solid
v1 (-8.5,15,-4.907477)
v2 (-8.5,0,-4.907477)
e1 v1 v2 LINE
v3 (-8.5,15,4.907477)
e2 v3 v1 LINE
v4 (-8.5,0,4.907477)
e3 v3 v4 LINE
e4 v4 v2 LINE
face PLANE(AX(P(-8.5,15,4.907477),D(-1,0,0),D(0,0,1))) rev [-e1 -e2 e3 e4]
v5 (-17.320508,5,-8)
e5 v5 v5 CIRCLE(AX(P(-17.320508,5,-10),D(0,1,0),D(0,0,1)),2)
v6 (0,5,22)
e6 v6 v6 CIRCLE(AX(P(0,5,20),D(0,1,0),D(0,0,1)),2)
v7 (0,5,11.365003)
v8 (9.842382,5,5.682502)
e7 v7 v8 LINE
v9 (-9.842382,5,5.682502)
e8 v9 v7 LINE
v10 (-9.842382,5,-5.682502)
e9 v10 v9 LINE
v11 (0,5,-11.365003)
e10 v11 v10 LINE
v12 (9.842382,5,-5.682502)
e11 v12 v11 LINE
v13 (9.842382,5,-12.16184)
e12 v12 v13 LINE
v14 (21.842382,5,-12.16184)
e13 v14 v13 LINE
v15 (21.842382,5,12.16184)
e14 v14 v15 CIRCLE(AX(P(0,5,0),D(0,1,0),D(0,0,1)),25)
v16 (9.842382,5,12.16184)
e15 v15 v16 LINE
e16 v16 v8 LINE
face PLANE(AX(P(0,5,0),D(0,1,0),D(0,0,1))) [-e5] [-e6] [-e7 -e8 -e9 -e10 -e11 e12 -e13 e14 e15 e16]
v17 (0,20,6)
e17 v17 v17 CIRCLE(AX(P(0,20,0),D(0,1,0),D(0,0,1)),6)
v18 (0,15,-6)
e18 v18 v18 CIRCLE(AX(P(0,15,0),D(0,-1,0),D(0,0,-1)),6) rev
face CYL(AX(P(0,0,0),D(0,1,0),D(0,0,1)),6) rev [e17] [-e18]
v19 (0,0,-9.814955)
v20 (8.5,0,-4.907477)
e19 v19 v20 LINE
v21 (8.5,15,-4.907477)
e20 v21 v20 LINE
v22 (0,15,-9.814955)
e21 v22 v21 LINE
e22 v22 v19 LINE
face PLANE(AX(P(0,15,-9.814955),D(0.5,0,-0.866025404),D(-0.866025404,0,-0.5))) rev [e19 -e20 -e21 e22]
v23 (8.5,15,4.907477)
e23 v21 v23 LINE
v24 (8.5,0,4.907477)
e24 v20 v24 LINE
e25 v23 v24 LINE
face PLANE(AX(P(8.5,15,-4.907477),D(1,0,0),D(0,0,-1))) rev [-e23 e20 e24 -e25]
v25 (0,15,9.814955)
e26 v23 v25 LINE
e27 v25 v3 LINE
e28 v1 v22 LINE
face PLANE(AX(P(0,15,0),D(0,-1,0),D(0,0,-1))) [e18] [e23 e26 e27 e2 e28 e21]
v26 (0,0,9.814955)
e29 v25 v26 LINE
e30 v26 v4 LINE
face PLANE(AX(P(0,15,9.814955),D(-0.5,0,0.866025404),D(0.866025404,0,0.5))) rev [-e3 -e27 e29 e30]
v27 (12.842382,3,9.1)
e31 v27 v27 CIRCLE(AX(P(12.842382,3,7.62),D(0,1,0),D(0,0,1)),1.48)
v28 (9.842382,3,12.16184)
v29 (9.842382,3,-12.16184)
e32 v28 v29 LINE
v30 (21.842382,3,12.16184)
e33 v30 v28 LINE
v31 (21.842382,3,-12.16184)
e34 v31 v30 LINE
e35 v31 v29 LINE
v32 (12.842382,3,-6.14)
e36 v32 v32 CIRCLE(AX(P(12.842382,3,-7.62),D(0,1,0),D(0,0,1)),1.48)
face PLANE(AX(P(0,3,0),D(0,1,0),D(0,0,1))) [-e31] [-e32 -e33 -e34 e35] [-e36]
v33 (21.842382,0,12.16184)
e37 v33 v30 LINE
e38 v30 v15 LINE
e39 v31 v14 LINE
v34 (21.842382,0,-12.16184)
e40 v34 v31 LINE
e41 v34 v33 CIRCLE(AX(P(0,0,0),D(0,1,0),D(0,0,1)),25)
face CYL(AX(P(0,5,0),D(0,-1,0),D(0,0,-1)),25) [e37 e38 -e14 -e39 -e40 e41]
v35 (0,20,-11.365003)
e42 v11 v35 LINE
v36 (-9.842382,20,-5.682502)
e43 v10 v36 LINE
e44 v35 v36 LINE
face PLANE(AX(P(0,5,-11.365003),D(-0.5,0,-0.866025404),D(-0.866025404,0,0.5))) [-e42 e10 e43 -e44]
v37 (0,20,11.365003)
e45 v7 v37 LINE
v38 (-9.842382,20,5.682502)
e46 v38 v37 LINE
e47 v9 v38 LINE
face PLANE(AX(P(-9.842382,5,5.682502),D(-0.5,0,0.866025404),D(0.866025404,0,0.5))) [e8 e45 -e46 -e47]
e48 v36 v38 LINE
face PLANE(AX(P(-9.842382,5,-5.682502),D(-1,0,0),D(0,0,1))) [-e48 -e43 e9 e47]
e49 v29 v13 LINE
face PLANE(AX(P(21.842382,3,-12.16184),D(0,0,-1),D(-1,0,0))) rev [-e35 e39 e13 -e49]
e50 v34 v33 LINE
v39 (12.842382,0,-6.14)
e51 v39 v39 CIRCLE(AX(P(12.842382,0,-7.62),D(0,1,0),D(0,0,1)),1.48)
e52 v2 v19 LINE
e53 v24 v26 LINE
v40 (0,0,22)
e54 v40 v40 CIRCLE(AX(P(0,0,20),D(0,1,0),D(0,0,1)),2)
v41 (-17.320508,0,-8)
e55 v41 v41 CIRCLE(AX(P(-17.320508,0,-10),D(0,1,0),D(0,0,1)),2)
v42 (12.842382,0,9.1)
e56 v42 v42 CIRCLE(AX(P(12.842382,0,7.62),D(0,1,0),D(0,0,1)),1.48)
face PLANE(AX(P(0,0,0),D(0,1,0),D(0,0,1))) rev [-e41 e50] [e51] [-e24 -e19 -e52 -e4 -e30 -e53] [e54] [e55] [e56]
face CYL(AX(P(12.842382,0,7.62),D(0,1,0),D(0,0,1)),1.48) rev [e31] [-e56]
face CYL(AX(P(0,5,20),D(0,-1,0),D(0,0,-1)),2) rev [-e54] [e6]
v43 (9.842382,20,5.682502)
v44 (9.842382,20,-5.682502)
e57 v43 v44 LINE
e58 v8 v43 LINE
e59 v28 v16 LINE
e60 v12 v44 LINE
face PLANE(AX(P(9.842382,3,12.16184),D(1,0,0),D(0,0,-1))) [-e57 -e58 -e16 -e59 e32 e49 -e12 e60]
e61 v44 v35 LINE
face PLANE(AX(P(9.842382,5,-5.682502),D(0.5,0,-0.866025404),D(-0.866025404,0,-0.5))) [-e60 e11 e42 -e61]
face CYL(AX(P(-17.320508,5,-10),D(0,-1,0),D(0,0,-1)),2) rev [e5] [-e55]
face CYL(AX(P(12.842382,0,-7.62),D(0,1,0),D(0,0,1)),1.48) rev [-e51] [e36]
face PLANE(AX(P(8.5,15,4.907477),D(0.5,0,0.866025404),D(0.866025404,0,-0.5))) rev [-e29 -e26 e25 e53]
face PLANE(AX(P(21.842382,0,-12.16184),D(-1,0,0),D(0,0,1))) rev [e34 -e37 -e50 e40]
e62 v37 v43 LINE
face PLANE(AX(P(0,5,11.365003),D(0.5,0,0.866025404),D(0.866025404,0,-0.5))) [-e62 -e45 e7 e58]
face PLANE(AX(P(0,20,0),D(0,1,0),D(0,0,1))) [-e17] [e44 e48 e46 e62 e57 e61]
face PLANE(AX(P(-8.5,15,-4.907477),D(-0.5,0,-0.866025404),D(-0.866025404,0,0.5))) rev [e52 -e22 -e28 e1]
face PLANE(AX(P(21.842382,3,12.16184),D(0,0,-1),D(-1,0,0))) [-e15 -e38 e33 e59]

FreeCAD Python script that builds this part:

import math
import FreeCAD as App
import Part
import Sketcher
from FreeCAD import Vector
Q = App.Units.Quantity

doc = App.newDocument("Part")
params = doc.addObject("Spreadsheet::Sheet", "Params")
for row, (alias, value) in enumerate([
    ("sketch1_diameter", "50 mm"),
    ("sketch1_diameter2", "4 mm"),
    ("sketch1_diameter3", "30 mm"),
    ("pad1_length", "5 mm"),
    ("sketch2_radius", "1.48 mm"),
    ("sketch2_height", "20.32 mm"),
    ("pad2_length", "5 mm"),
    ("sketch3_diameter", "2.96 mm"),
    ("pocket1_length", "5 mm"),
    ("sketch4_diameter", "2.96 mm"),
    ("sketch4_height", "20.32 mm"),
    ("pad3_length", "25 mm"),
    ("sketch5_diameter", "2.96 mm"),
    ("pad4_length", "15 mm"),
    ("sketch6_height", "20.32 mm"),
    ("pocket2_length", "10 mm"),
    ("sketch7_diameter", "2.96 mm"),
    ("pocket3_length", "15 mm"),
    ("sketch8_radius", "1.48 mm"),
    ("sketch8_height", "20.32 mm"),
    ("pad5_length", "15 mm"),
    ("sketch9_height", "20.32 mm"),
    ("pocket4_length", "20 mm"),
    ("sketch10_height", "20.32 mm"),
    ("pad6_length", "10 mm"),
    ("sketch11_radius", "25 mm"),
    ("sketch11_height", "20.32 mm"),
    ("pad7_length", "5 mm"),
    ("sketch12_radius", "31.39 mm"),
    ("sketch12_height", "10.16 mm"),
    ("pocket5_length", "30 mm"),
    ("sketch13_diameter", "30 mm"),
    ("sketch13_diameter2", "13 mm"),
    ("pad8_length", "5 mm"),
    ("sketch14_diameter", "2.96 mm"),
    ("pocket6_length", "5 mm"),
    ("pocket7_length", "15 mm"),
    ("sketch16_diameter", "13 mm"),
    ("sketch16_diameter2", "12 mm"),
    ("pad9_length", "5 mm"),
    ("sketch17_diameter", "2.96 mm"),
    ("sketch17_height", "20.32 mm"),
    ("pocket8_length", "2 mm"),
    ("sketch18_radius", "24.999999 mm"),
    ("sketch18_height", "20.32 mm"),
    ("pocket9_length", "2 mm"),
    ("sketch19_width", "12 mm"),
    ("pocket10_length", "2 mm"),
    ("sketch20_diameter", "4 mm"),
    ("pad10_length", "3 mm"),
    ("sketch21_diameter", "2.96 mm"),
    ("pocket11_length", "3 mm"),
    ("pocket12_length", "3 mm"),
    ("sketch23_diameter", "12 mm"),
    ("pad11_length", "15 mm"),
    ("pocket13_length", "15 mm"),
    ("sketch25_diameter", "12 mm"),
    ("pad12_length", "15 mm"),
    ("pocket14_length", "15 mm"),
], start=1):
    params.set(f"A{row}", alias)
    params.set(f"B{row}", "=" + value)
    params.setAlias(f"B{row}", alias)

body = doc.addObject("PartDesign::Body", "Body")

sketch1 = body.newObject("Sketcher::SketchObject", "Sketch")
sketch1.AttachmentSupport = (doc.getObject("XZ_Plane"), [""])
sketch1.MapMode = "FlatFace"
sketch1.addGeometry([
    Part.Circle(Vector(0, 0, 0), Vector(0, 0, 1), 25),
    Part.Circle(Vector(-17.3, -10, 0), Vector(0, 0, 1), 2),
    Part.Circle(Vector(0, 0, 0), Vector(0, 0, 1), 15),
    Part.Circle(Vector(17.3, -10, 0), Vector(0, 0, 1), 2),
    Part.Circle(Vector(0, 20, 0), Vector(0, 0, 1), 2),
], False)
sketch1.addConstraint([
    Sketcher.Constraint("Coincident", 0, 3, -1, 1),
    Sketcher.Constraint("Coincident", 2, 3, -1, 1),
    Sketcher.Constraint("Equal", 1, 3),
    Sketcher.Constraint("Equal", 3, 4),
    Sketcher.Constraint("Symmetric", 1, 3, 3, 3, -2),
    Sketcher.Constraint("PointOnObject", 4, 3, -2),
    Sketcher.Constraint("Diameter", 0, Q("50 mm")),
    Sketcher.Constraint("Diameter", 1, Q("4 mm")),
    Sketcher.Constraint("Diameter", 2, Q("30 mm")),
    Sketcher.Constraint("DistanceY", 1, 3, -1, 1, Q("10 mm")),
    Sketcher.Constraint("DistanceY", -1, 1, 4, 3, Q("20 mm")),
    Sketcher.Constraint("DistanceX", 1, 3, -1, 1, Q("17.320508 mm")),
])
sketch1.setExpression("Constraints[6]", "Params.sketch1_diameter")
sketch1.setExpression("Constraints[7]", "Params.sketch1_diameter2")
sketch1.setExpression("Constraints[8]", "Params.sketch1_diameter3")
pad1 = body.newObject("PartDesign::Pad", "Pad")
pad1.Profile = sketch1
pad1.setExpression("Length", "Params.pad1_length")
pad1.Reversed = True

sketch2 = body.newObject("Sketcher::SketchObject", "Sketch001")
sketch2.AttachmentSupport = (doc.getObject("XZ_Plane"), [""])
sketch2.MapMode = "FlatFace"
sketch2.addGeometry([
    Part.LineSegment(Vector(-22.8, -10.2, 0), Vector(-31.4, -10.2, 0)),
    Part.LineSegment(Vector(-31.4, -10.2, 0), Vector(-31.4, 10.2, 0)),
    Part.LineSegment(Vector(-31.4, 10.2, 0), Vector(-22.8, 10.2, 0)),
    Part.LineSegment(Vector(-22.8, 10.2, 0), Vector(-22.8, -10.2, 0)),
    Part.ArcOfCircle(Part.Circle(Vector(-25, 7.6, 0), Vector(0, 0, 1), 1.5), math.radians(20), math.radians(307)),
    Part.ArcOfCircle(Part.Circle(Vector(-25, 7.6, 0), Vector(0, 0, 1), 1.5), math.radians(-53), math.radians(0)),
    Part.ArcOfCircle(Part.Circle(Vector(-25, 7.6, 0), Vector(0, 0, 1), 1.5), math.radians(0), math.radians(19.6)),
    Part.ArcOfCircle(Part.Circle(Vector(-25, -7.6, 0), Vector(0, 0, 1), 1.5), math.radians(53), math.radians(340)),
    Part.ArcOfCircle(Part.Circle(Vector(-25, -7.6, 0), Vector(0, 0, 1), 1.5), math.radians(-19.6), math.radians(0)),
    Part.ArcOfCircle(Part.Circle(Vector(-25, -7.6, 0), Vector(0, 0, 1), 1.5), math.radians(0), math.radians(53)),
], False)
sketch2.addConstraint([
    Sketcher.Constraint("Coincident", 0, 2, 1, 1),
    Sketcher.Constraint("Coincident", 1, 2, 2, 1),
    Sketcher.Constraint("Coincident", 2, 2, 3, 1),
    Sketcher.Constraint("Coincident", 3, 2, 0, 1),
    Sketcher.Constraint("Tangent", 4, 2, 5, 1),
    Sketcher.Constraint("Tangent", 5, 2, 6, 1),
    Sketcher.Constraint("Tangent", 6, 2, 4, 1),
    Sketcher.Constraint("Tangent", 7, 2, 8, 1),
    Sketcher.Constraint("Tangent", 8, 2, 9, 1),
    Sketcher.Constraint("Tangent", 9, 2, 7, 1),
    Sketcher.Constraint("Horizontal", 0),
    Sketcher.Constraint("Vertical", 1),
    Sketcher.Constraint("Horizontal", 2),
    Sketcher.Constraint("Vertical", 3),
    Sketcher.Constraint("Equal", 6, 7),
    Sketcher.Constraint("Symmetric", 4, 3, 7, 3, -1),
    Sketcher.Constraint("Horizontal", 6, 3, 5, 2),
    Sketcher.Constraint("Horizontal", 9, 3, 8, 2),
    Sketcher.Constraint("Vertical", 6, 2, 7, 2),
    Sketcher.Constraint("Vertical", 4, 2, 9, 2),
    Sketcher.Constraint("Radius", 4, Q("1.48 mm")),
    Sketcher.Constraint("DistanceY", 1, 1, 1, 2, Q("20.32 mm")),
    Sketcher.Constraint("DistanceX", 4, 3, -1, 1, Q("25.04 mm")),
    Sketcher.Constraint("DistanceY", -1, 1, 4, 3, Q("7.62 mm")),
    Sketcher.Constraint("DistanceX", 0, 2, -1, 1, Q("31.39 mm")),
    Sketcher.Constraint("DistanceY", 0, 2, -1, 1, Q("10.16 mm")),
    Sketcher.Constraint("DistanceX", 0, 2, 0, 1, Q("8.547618 mm")),
    Sketcher.Constraint("DistanceX", 6, 2, -1, 1, Q("23.645768 mm")),
    Sketcher.Constraint("DistanceY", 4, 2, 6, 2, Q("1.685489 mm")),
])
sketch2.setExpression("Constraints[20]", "Params.sketch2_radius")
sketch2.setExpression("Constraints[21]", "Params.sketch2_height")
pad2 = body.newObject("PartDesign::Pad", "Pad001")
pad2.Profile = sketch2
pad2.setExpression("Length", "Params.pad2_length")
pad2.Reversed = True

sketch3 = body.newObject("Sketcher::SketchObject", "Sketch002")
sketch3.AttachmentSupport = (doc.getObject("XZ_Plane"), [""])
sketch3.MapMode = "FlatFace"
sketch3.addGeometry([
    Part.Circle(Vector(-25, -7.6, 0), Vector(0, 0, 1), 1.5),
    Part.Circle(Vector(-25, 7.6, 0), Vector(0, 0, 1), 1.5),
], False)
sketch3.addConstraint([
    Sketcher.Constraint("Equal", 0, 1),
    Sketcher.Constraint("Symmetric", 0, 3, 1, 3, -1),
    Sketcher.Constraint("Diameter", 0, Q("2.96 mm")),
    Sketcher.Constraint("DistanceX", 0, 3, -1, 1, Q("25.04 mm")),
    Sketcher.Constraint("DistanceY", 0, 3, -1, 1, Q("7.62 mm")),
])
sketch3.setExpression("Constraints[2]", "Params.sketch3_diameter")
pocket1 = body.newObject("PartDesign::Pocket", "Pocket")
pocket1.Profile = sketch3
pocket1.setExpression("Length", "Params.pocket1_length")

sketch4 = body.newObject("Sketcher::SketchObject", "Sketch003")
sketch4.AttachmentSupport = (doc.getObject("XZ_Plane"), [""])
sketch4.MapMode = "FlatFace"
sketch4.AttachmentOffset = App.Placement(Vector(0, 0, -5), App.Rotation())
sketch4.addGeometry([
    Part.LineSegment(Vector(-31.4, -10.2, 0), Vector(-31.4, 10.2, 0)),
    Part.LineSegment(Vector(-31.4, 10.2, 0), Vector(-22.8, 10.2, 0)),
    Part.LineSegment(Vector(-22.8, 10.2, 0), Vector(-22.8, -10.2, 0)),
    Part.LineSegment(Vector(-22.8, -10.2, 0), Vector(-31.4, -10.2, 0)),
    Part.Circle(Vector(-25, 7.6, 0), Vector(0, 0, 1), 1.5),
    Part.Circle(Vector(-25, -7.6, 0), Vector(0, 0, 1), 1.5),
], False)
sketch4.addConstraint([
    Sketcher.Constraint("Coincident", 0, 2, 1, 1),
    Sketcher.Constraint("Coincident", 1, 2, 2, 1),
    Sketcher.Constraint("Coincident", 2, 2, 3, 1),
    Sketcher.Constraint("Coincident", 3, 2, 0, 1),
    Sketcher.Constraint("Vertical", 0),
    Sketcher.Constraint("Horizontal", 1),
    Sketcher.Constraint("Vertical", 2),
    Sketcher.Constraint("Horizontal", 3),
    Sketcher.Constraint("Symmetric", 4, 3, 5, 3, -1),
    Sketcher.Constraint("Diameter", 5, Q("2.96 mm")),
    Sketcher.Constraint("DistanceY", 0, 1, 0, 2, Q("20.32 mm")),
    Sketcher.Constraint("DistanceX", 4, 3, -1, 1, Q("25.04 mm")),
    Sketcher.Constraint("DistanceY", -1, 1, 4, 3, Q("7.62 mm")),
    Sketcher.Constraint("DistanceX", 0, 2, -1, 1, Q("31.39 mm")),
    Sketcher.Constraint("DistanceY", -1, 1, 0, 2, Q("10.16 mm")),
    Sketcher.Constraint("Diameter", 4, Q("3.065222 mm")),
    Sketcher.Constraint("DistanceX", 1, 1, 1, 2, Q("8.547618 mm")),
])
sketch4.setExpression("Constraints[9]", "Params.sketch4_diameter")
sketch4.setExpression("Constraints[10]", "Params.sketch4_height")
pad3 = body.newObject("PartDesign::Pad", "Pad002")
pad3.Profile = sketch4
pad3.setExpression("Length", "Params.pad3_length")
pad3.Reversed = True

sketch5 = body.newObject("Sketcher::SketchObject", "Sketch004")
sketch5.AttachmentSupport = (doc.getObject("XZ_Plane"), [""])
sketch5.MapMode = "FlatFace"
sketch5.addGeometry([
    Part.Circle(Vector(-25, 7.6, 0), Vector(0, 0, 1), 1.5),
    Part.Circle(Vector(-25, -7.6, 0), Vector(0, 0, 1), 1.5),
], False)
sketch5.addConstraint([
    Sketcher.Constraint("Equal", 0, 1),
    Sketcher.Constraint("Symmetric", 0, 3, 1, 3, -1),
    Sketcher.Constraint("Diameter", 0, Q("2.96 mm")),
    Sketcher.Constraint("DistanceX", 0, 3, -1, 1, Q("25.04 mm")),
    Sketcher.Constraint("DistanceY", -1, 1, 0, 3, Q("7.62 mm")),
])
sketch5.setExpression("Constraints[2]", "Params.sketch5_diameter")
pad4 = body.newObject("PartDesign::Pad", "Pad003")
pad4.Profile = sketch5
pad4.setExpression("Length", "Params.pad4_length")
pad4.Reversed = True

sketch6 = body.newObject("Sketcher::SketchObject", "Sketch005")
sketch6.AttachmentSupport = (doc.getObject("XZ_Plane"), [""])
sketch6.MapMode = "FlatFace"
sketch6.AttachmentOffset = App.Placement(Vector(0, 0, -30), App.Rotation())
sketch6.addGeometry([
    Part.LineSegment(Vector(-31, -10, 0), Vector(-31, 10, 0)),
    Part.LineSegment(Vector(-31, 10, 0), Vector(-23, 10, 0)),
    Part.LineSegment(Vector(-23, 10, 0), Vector(-23, -10, 0)),
    Part.LineSegment(Vector(-23, -10, 0), Vector(-31, -10, 0)),
], False)
sketch6.addConstraint([
    Sketcher.Constraint("Coincident", 0, 2, 1, 1),
    Sketcher.Constraint("Coincident", 1, 2, 2, 1),
    Sketcher.Constraint("Coincident", 2, 2, 3, 1),
    Sketcher.Constraint("Coincident", 3, 2, 0, 1),
    Sketcher.Constraint("Vertical", 0),
    Sketcher.Constraint("Horizontal", 1),
    Sketcher.Constraint("Vertical", 2),
    Sketcher.Constraint("Horizontal", 3),
    Sketcher.Constraint("DistanceY", 0, 1, 0, 2, Q("20.32 mm")),
    Sketcher.Constraint("DistanceX", 0, 2, -1, 1, Q("31.39 mm")),
    Sketcher.Constraint("DistanceY", -1, 1, 0, 2, Q("10.16 mm")),
    Sketcher.Constraint("DistanceX", 1, 1, 1, 2, Q("8.547618 mm")),
])
sketch6.setExpression("Constraints[8]", "Params.sketch6_height")
pocket2 = body.newObject("PartDesign::Pocket", "Pocket001")
pocket2.Profile = sketch6
pocket2.setExpression("Length", "Params.pocket2_length")
pocket2.Reversed = True

sketch7 = body.newObject("Sketcher::SketchObject", "Sketch006")
sketch7.AttachmentSupport = (doc.getObject("XZ_Plane"), [""])
sketch7.MapMode = "FlatFace"
sketch7.AttachmentOffset = App.Placement(Vector(0, 0, -5), App.Rotation())
sketch7.addGeometry([
    Part.Circle(Vector(-25, -7.6, 0), Vector(0, 0, 1), 1.5),
    Part.Circle(Vector(-25, 7.6, 0), Vector(0, 0, 1), 1.5),
], False)
sketch7.addConstraint([
    Sketcher.Constraint("Symmetric", 0, 3, 1, 3, -1),
    Sketcher.Constraint("Diameter", 0, Q("2.96 mm")),
    Sketcher.Constraint("DistanceX", 0, 3, -1, 1, Q("25.04 mm")),
    Sketcher.Constraint("DistanceY", 0, 3, -1, 1, Q("7.62 mm")),
    Sketcher.Constraint("Diameter", 1, Q("3.065222 mm")),
])
sketch7.setExpression("Constraints[1]", "Params.sketch7_diameter")
pocket3 = body.newObject("PartDesign::Pocket", "Pocket002")
pocket3.Profile = sketch7
pocket3.setExpression("Length", "Params.pocket3_length")

sketch8 = body.newObject("Sketcher::SketchObject", "Sketch007")
sketch8.AttachmentSupport = (doc.getObject("XZ_Plane"), [""])
sketch8.MapMode = "FlatFace"
sketch8.AttachmentOffset = App.Placement(Vector(0, 0, -5), App.Rotation())
sketch8.addGeometry([
    Part.LineSegment(Vector(31.4, -10.2, 0), Vector(22.8, -10.2, 0)),
    Part.LineSegment(Vector(22.8, -10.2, 0), Vector(22.8, 10.2, 0)),
    Part.LineSegment(Vector(22.8, 10.2, 0), Vector(31.4, 10.2, 0)),
    Part.LineSegment(Vector(31.4, 10.2, 0), Vector(31.4, -10.2, 0)),
    Part.ArcOfCircle(Part.Circle(Vector(25, -7.6, 0), Vector(0, 0, 1), 1.5), math.radians(-160), math.radians(0)),
    Part.ArcOfCircle(Part.Circle(Vector(25, -7.6, 0), Vector(0, 0, 1), 1.5), math.radians(0), math.radians(127)),
    Part.ArcOfCircle(Part.Circle(Vector(25, -7.6, 0), Vector(0, 0, 1), 1.5), math.radians(127), math.radians(200)),
    Part.ArcOfCircle(Part.Circle(Vector(25, 7.6, 0), Vector(0, 0, 1), 1.5), math.radians(-127), math.radians(0)),
    Part.ArcOfCircle(Part.Circle(Vector(25, 7.6, 0), Vector(0, 0, 1), 1.5), math.radians(0), math.radians(160)),
    Part.ArcOfCircle(Part.Circle(Vector(25, 7.6, 0), Vector(0, 0, 1), 1.5), math.radians(160), math.radians(233)),
], False)
sketch8.addConstraint([
    Sketcher.Constraint("Coincident", 0, 2, 1, 1),
    Sketcher.Constraint("Coincident", 1, 2, 2, 1),
    Sketcher.Constraint("Coincident", 2, 2, 3, 1),
    Sketcher.Constraint("Coincident", 3, 2, 0, 1),
    Sketcher.Constraint("Tangent", 4, 2, 5, 1),
    Sketcher.Constraint("Tangent", 5, 2, 6, 1),
    Sketcher.Constraint("Tangent", 6, 2, 4, 1),
    Sketcher.Constraint("Tangent", 7, 2, 8, 1),
    Sketcher.Constraint("Tangent", 8, 2, 9, 1),
    Sketcher.Constraint("Tangent", 9, 2, 7, 1),
    Sketcher.Constraint("Horizontal", 0),
    Sketcher.Constraint("Vertical", 1),
    Sketcher.Constraint("Horizontal", 2),
    Sketcher.Constraint("Vertical", 3),
    Sketcher.Constraint("Equal", 6, 7),
    Sketcher.Constraint("Symmetric", 4, 3, 7, 3, -1),
    Sketcher.Constraint("Horizontal", 6, 3, 4, 2),
    Sketcher.Constraint("Horizontal", 9, 3, 7, 2),
    Sketcher.Constraint("Vertical", 6, 2, 8, 2),
    Sketcher.Constraint("Vertical", 5, 2, 9, 2),
    Sketcher.Constraint("Radius", 4, Q("1.48 mm")),
    Sketcher.Constraint("DistanceY", 1, 1, 1, 2, Q("20.32 mm")),
    Sketcher.Constraint("DistanceX", -1, 1, 4, 3, Q("25.04 mm")),
    Sketcher.Constraint("DistanceY", 4, 3, -1, 1, Q("7.62 mm")),
    Sketcher.Constraint("DistanceY", 0, 2, -1, 1, Q("10.16 mm")),
    Sketcher.Constraint("DistanceX", -1, 1, 2, 2, Q("31.39 mm")),
    Sketcher.Constraint("DistanceX", 0, 2, 0, 1, Q("8.547618 mm")),
    Sketcher.Constraint("DistanceX", -1, 1, 6, 2, Q("23.645768 mm")),
    Sketcher.Constraint("DistanceY", 6, 2, 5, 2, Q("1.685489 mm")),
])
sketch8.setExpression("Constraints[20]", "Params.sketch8_radius")
sketch8.setExpression("Constraints[21]", "Params.sketch8_height")
pad5 = body.newObject("PartDesign::Pad", "Pad004")
pad5.Profile = sketch8
pad5.setExpression("Length", "Params.pad5_length")
pad5.Reversed = True

sketch9 = body.newObject("Sketcher::SketchObject", "Sketch008")
sketch9.AttachmentSupport = (doc.getObject("XZ_Plane"), [""])
sketch9.MapMode = "FlatFace"
sketch9.AttachmentOffset = App.Placement(Vector(0, 0, -20), App.Rotation())
sketch9.addGeometry([
    Part.LineSegment(Vector(-31, -10, 0), Vector(-31, 10, 0)),
    Part.LineSegment(Vector(-31, 10, 0), Vector(-23, 10, 0)),
    Part.LineSegment(Vector(-23, 10, 0), Vector(-23, -10, 0)),
    Part.LineSegment(Vector(-23, -10, 0), Vector(-31, -10, 0)),
], False)
sketch9.addConstraint([
    Sketcher.Constraint("Coincident", 0, 2, 1, 1),
    Sketcher.Constraint("Coincident", 1, 2, 2, 1),
    Sketcher.Constraint("Coincident", 2, 2, 3, 1),
    Sketcher.Constraint("Coincident", 3, 2, 0, 1),
    Sketcher.Constraint("Vertical", 0),
    Sketcher.Constraint("Horizontal", 1),
    Sketcher.Constraint("Vertical", 2),
    Sketcher.Constraint("Horizontal", 3),
    Sketcher.Constraint("DistanceY", 0, 1, 0, 2, Q("20.32 mm")),
    Sketcher.Constraint("DistanceX", 0, 2, -1, 1, Q("31.39 mm")),
    Sketcher.Constraint("DistanceY", -1, 1, 0, 2, Q("10.16 mm")),
    Sketcher.Constraint("DistanceX", 1, 1, 1, 2, Q("8.547618 mm")),
])
sketch9.setExpression("Constraints[8]", "Params.sketch9_height")
pocket4 = body.newObject("PartDesign::Pocket", "Pocket003")
pocket4.Profile = sketch9
pocket4.setExpression("Length", "Params.pocket4_length")
pocket4.Reversed = True

sketch10 = body.newObject("Sketcher::SketchObject", "Sketch009")
sketch10.AttachmentSupport = (doc.getObject("XZ_Plane"), [""])
sketch10.MapMode = "FlatFace"
sketch10.addGeometry([
    Part.LineSegment(Vector(23, 10, 0), Vector(23, -10, 0)),
    Part.LineSegment(Vector(23, -10, 0), Vector(31, -10, 0)),
    Part.LineSegment(Vector(31, -10, 0), Vector(31, 10, 0)),
    Part.LineSegment(Vector(31, 10, 0), Vector(23, 10, 0)),
], False)
sketch10.addConstraint([
    Sketcher.Constraint("Coincident", 0, 2, 1, 1),
    Sketcher.Constraint("Coincident", 1, 2, 2, 1),
    Sketcher.Constraint("Coincident", 2, 2, 3, 1),
    Sketcher.Constraint("Coincident", 3, 2, 0, 1),
    Sketcher.Constraint("Vertical", 0),
    Sketcher.Constraint("Horizontal", 1),
    Sketcher.Constraint("Vertical", 2),
    Sketcher.Constraint("Horizontal", 3),
    Sketcher.Constraint("DistanceY", 0, 2, 0, 1, Q("20.32 mm")),
    Sketcher.Constraint("DistanceY", 0, 2, -1, 1, Q("10.16 mm")),
    Sketcher.Constraint("DistanceX", -1, 1, 1, 2, Q("31.39 mm")),
    Sketcher.Constraint("DistanceX", 1, 1, 1, 2, Q("8.547618 mm")),
])
sketch10.setExpression("Constraints[8]", "Params.sketch10_height")
pad6 = body.newObject("PartDesign::Pad", "Pad005")
pad6.Profile = sketch10
pad6.setExpression("Length", "Params.pad6_length")
pad6.Reversed = True

sketch11 = body.newObject("Sketcher::SketchObject", "Sketch010")
sketch11.AttachmentSupport = (doc.getObject("XZ_Plane"), [""])
sketch11.MapMode = "FlatFace"
sketch11.addGeometry([
    Part.LineSegment(Vector(-23, 10, 0), Vector(-23, -10, 0)),
    Part.ArcOfCircle(Part.Circle(Vector(0, 0, 0), Vector(0, 0, 1), 25), math.radians(156), math.radians(204)),
], False)
sketch11.addConstraint([
    Sketcher.Constraint("Coincident", 0, 1, 1, 1),
    Sketcher.Constraint("Coincident", 1, 2, 0, 2),
    Sketcher.Constraint("Vertical", 0),
    Sketcher.Constraint("Coincident", 1, 3, -1, 1),
    Sketcher.Constraint("Radius", 1, Q("25 mm")),
    Sketcher.Constraint("DistanceY", 0, 2, 0, 1, Q("20.32 mm")),
])
sketch11.setExpression("Constraints[4]", "Params.sketch11_radius")
sketch11.setExpression("Constraints[5]", "Params.sketch11_height")
pad7 = body.newObject("PartDesign::Pad", "Pad006")
pad7.Profile = sketch11
pad7.setExpression("Length", "Params.pad7_length")
pad7.Reversed = True

sketch12 = body.newObject("Sketcher::SketchObject", "Sketch011")
sketch12.AttachmentSupport = (doc.getObject("XZ_Plane"), [""])
sketch12.MapMode = "FlatFace"
sketch12.addGeometry([
    Part.ArcOfCircle(Part.Circle(Vector(0, 0, 0), Vector(0, 0, 1), 31.4), math.radians(0), math.radians(18.89)),
    Part.LineSegment(Vector(31.4, 0, 0), Vector(31.4, 10.2, 0)),
    Part.LineSegment(Vector(31.4, 10.2, 0), Vector(29.7, 10.2, 0)),
    Part.ArcOfCircle(Part.Circle(Vector(0, 0, 0), Vector(0, 0, 1), 31.4), math.radians(-18.89), math.radians(0)),
    Part.LineSegment(Vector(29.7, -10.2, 0), Vector(31.4, -10.2, 0)),
    Part.LineSegment(Vector(31.4, -10.2, 0), Vector(31.4, 0, 0)),
], False)
sketch12.addConstraint([
    Sketcher.Constraint("Tangent", 0, 1, 1, 1),
    Sketcher.Constraint("Coincident", 1, 2, 2, 1),
    Sketcher.Constraint("Coincident", 2, 2, 0, 2),
    Sketcher.Constraint("Coincident", 3, 1, 4, 1),
    Sketcher.Constraint("Coincident", 4, 2, 5, 1),
    Sketcher.Constraint("Tangent", 5, 2, 3, 2),
    Sketcher.Constraint("Vertical", 1),
    Sketcher.Constraint("Horizontal", 2),
    Sketcher.Constraint("Horizontal", 4),
    Sketcher.Constraint("Vertical", 5),
    Sketcher.Constraint("Coincident", 0, 3, -1, 1),
    Sketcher.Constraint("Coincident", 3, 3, -1, 1),
    Sketcher.Constraint("Equal", 0, 3),
    Sketcher.Constraint("Vertical", 2, 2, 3, 1),
    Sketcher.Constraint("Radius", 0, Q("31.39 mm")),
    Sketcher.Constraint("DistanceY", 1, 1, 1, 2, Q("10.16 mm")),
])
sketch12.setExpression("Constraints[14]", "Params.sketch12_radius")
sketch12.setExpression("Constraints[15]", "Params.sketch12_height")
pocket5 = body.newObject("PartDesign::Pocket", "Pocket004")
pocket5.Profile = sketch12
pocket5.setExpression("Length", "Params.pocket5_length")

sketch13 = body.newObject("Sketcher::SketchObject", "Sketch012")
sketch13.AttachmentSupport = (doc.getObject("XZ_Plane"), [""])
sketch13.MapMode = "FlatFace"
sketch13.addGeometry([
    Part.Circle(Vector(0, 0, 0), Vector(0, 0, 1), 15),
    Part.Circle(Vector(0, 0, 0), Vector(0, 0, 1), 6),
], False)
sketch13.addConstraint([
    Sketcher.Constraint("Coincident", 0, 3, -1, 1),
    Sketcher.Constraint("Coincident", 1, 3, -1, 1),
    Sketcher.Constraint("Diameter", 0, Q("30 mm")),
    Sketcher.Constraint("Diameter", 1, Q("13 mm")),
])
sketch13.setExpression("Constraints[2]", "Params.sketch13_diameter")
sketch13.setExpression("Constraints[3]", "Params.sketch13_diameter2")
pad8 = body.newObject("PartDesign::Pad", "Pad007")
pad8.Profile = sketch13
pad8.setExpression("Length", "Params.pad8_length")
pad8.Reversed = True

sketch14 = body.newObject("Sketcher::SketchObject", "Sketch013")
sketch14.AttachmentSupport = (doc.getObject("XZ_Plane"), [""])
sketch14.MapMode = "FlatFace"
sketch14.addGeometry([
    Part.Circle(Vector(25, -7.6, 0), Vector(0, 0, 1), 1.5),
    Part.Circle(Vector(25, 7.6, 0), Vector(0, 0, 1), 1.5),
], False)
sketch14.addConstraint([
    Sketcher.Constraint("Equal", 0, 1),
    Sketcher.Constraint("Symmetric", 0, 3, 1, 3, -1),
    Sketcher.Constraint("Diameter", 0, Q("2.96 mm")),
    Sketcher.Constraint("DistanceX", -1, 1, 0, 3, Q("25.04 mm")),
    Sketcher.Constraint("DistanceY", 0, 3, -1, 1, Q("7.62 mm")),
])
sketch14.setExpression("Constraints[2]", "Params.sketch14_diameter")
pocket6 = body.newObject("PartDesign::Pocket", "Pocket005")
pocket6.Profile = sketch14
pocket6.setExpression("Length", "Params.pocket6_length")

sketch15 = body.newObject("Sketcher::SketchObject", "Sketch014")
sketch15.AttachmentSupport = (doc.getObject("XZ_Plane"), [""])
sketch15.MapMode = "FlatFace"
sketch15.AttachmentOffset = App.Placement(Vector(0, 0, -20), App.Rotation())
sketch15.addGeometry([
    Part.LineSegment(Vector(23, -10, 0), Vector(23, 12, 0)),
    Part.LineSegment(Vector(23, 12, 0), Vector(38, 12, 0)),
    Part.LineSegment(Vector(38, 12, 0), Vector(38, -10, 0)),
    Part.LineSegment(Vector(38, -10, 0), Vector(23, -10, 0)),
], False)
sketch15.addConstraint([
    Sketcher.Constraint("Coincident", 0, 2, 1, 1),
    Sketcher.Constraint("Coincident", 1, 2, 2, 1),
    Sketcher.Constraint("Coincident", 2, 2, 3, 1),
    Sketcher.Constraint("Coincident", 3, 2, 0, 1),
    Sketcher.Constraint("Vertical", 0),
    Sketcher.Constraint("Horizontal", 1),
    Sketcher.Constraint("Vertical", 2),
    Sketcher.Constraint("Horizontal", 3),
    Sketcher.Constraint("DistanceY", 2, 2, -1, 1, Q("10.16 mm")),
    Sketcher.Constraint("DistanceX", 1, 1, 1, 2, Q("14.772216 mm")),
    Sketcher.Constraint("DistanceY", 0, 1, 0, 2, Q("22.255288 mm")),
    Sketcher.Constraint("DistanceX", -1, 1, 0, 2, Q("22.842382 mm")),
])
pocket7 = body.newObject("PartDesign::Pocket", "Pocket006")
pocket7.Profile = sketch15
pocket7.setExpression("Length", "Params.pocket7_length")
pocket7.Reversed = True

sketch16 = body.newObject("Sketcher::SketchObject", "Sketch015")
sketch16.AttachmentSupport = (doc.getObject("XZ_Plane"), [""])
sketch16.MapMode = "FlatFace"
sketch16.addGeometry([
    Part.Circle(Vector(0, 0, 0), Vector(0, 0, 1), 6),
    Part.Circle(Vector(0, 0, 0), Vector(0, 0, 1), 6),
], False)
sketch16.addConstraint([
    Sketcher.Constraint("Coincident", 0, 3, -1, 1),
    Sketcher.Constraint("Coincident", 1, 3, -1, 1),
    Sketcher.Constraint("Diameter", 0, Q("13 mm")),
    Sketcher.Constraint("Diameter", 1, Q("12 mm")),
])
sketch16.setExpression("Constraints[2]", "Params.sketch16_diameter")
sketch16.setExpression("Constraints[3]", "Params.sketch16_diameter2")
pad9 = body.newObject("PartDesign::Pad", "Pad008")
pad9.Profile = sketch16
pad9.setExpression("Length", "Params.pad9_length")
pad9.Reversed = True

sketch17 = body.newObject("Sketcher::SketchObject", "Sketch016")
sketch17.AttachmentSupport = (doc.getObject("XZ_Plane"), [""])
sketch17.MapMode = "FlatFace"
sketch17.AttachmentOffset = App.Placement(Vector(0, 0, -3), App.Rotation())
sketch17.addGeometry([
    Part.LineSegment(Vector(22.8, -10.2, 0), Vector(22.8, 10.2, 0)),
    Part.LineSegment(Vector(22.8, 10.2, 0), Vector(33.8, 10.2, 0)),
    Part.LineSegment(Vector(33.8, 10.2, 0), Vector(33.8, -10.2, 0)),
    Part.LineSegment(Vector(33.8, -10.2, 0), Vector(22.8, -10.2, 0)),
    Part.Circle(Vector(25, 7.6, 0), Vector(0, 0, 1), 1.5),
    Part.Circle(Vector(25, -7.6, 0), Vector(0, 0, 1), 1.5),
], False)
sketch17.addConstraint([
    Sketcher.Constraint("Coincident", 0, 2, 1, 1),
    Sketcher.Constraint("Coincident", 1, 2, 2, 1),
    Sketcher.Constraint("Coincident", 2, 2, 3, 1),
    Sketcher.Constraint("Coincident", 3, 2, 0, 1),
    Sketcher.Constraint("Vertical", 0),
    Sketcher.Constraint("Horizontal", 1),
    Sketcher.Constraint("Vertical", 2),
    Sketcher.Constraint("Horizontal", 3),
    Sketcher.Constraint("Equal", 4, 5),
    Sketcher.Constraint("Symmetric", 4, 3, 5, 3, -1),
    Sketcher.Constraint("Diameter", 4, Q("2.96 mm")),
    Sketcher.Constraint("DistanceY", 0, 1, 0, 2, Q("20.32 mm")),
    Sketcher.Constraint("DistanceX", -1, 1, 4, 3, Q("25.04 mm")),
    Sketcher.Constraint("DistanceY", -1, 1, 4, 3, Q("7.62 mm")),
    Sketcher.Constraint("DistanceY", -1, 1, 0, 2, Q("10.16 mm")),
    Sketcher.Constraint("DistanceX", 1, 1, 1, 2, Q("10.974829 mm")),
    Sketcher.Constraint("DistanceX", -1, 1, 0, 2, Q("22.842382 mm")),
])
sketch17.setExpression("Constraints[10]", "Params.sketch17_diameter")
sketch17.setExpression("Constraints[11]", "Params.sketch17_height")
pocket8 = body.newObject("PartDesign::Pocket", "Pocket007")
pocket8.Profile = sketch17
pocket8.setExpression("Length", "Params.pocket8_length")

sketch18 = body.newObject("Sketcher::SketchObject", "Sketch017")
sketch18.AttachmentSupport = (doc.getObject("XZ_Plane"), [""])
sketch18.MapMode = "FlatFace"
sketch18.AttachmentOffset = App.Placement(Vector(0, 0, -3), App.Rotation())
sketch18.addGeometry([
    Part.ArcOfCircle(Part.Circle(Vector(0, 0, 0), Vector(0, 0, 1), 25), math.radians(-29.11), math.radians(-23.98)),
    Part.LineSegment(Vector(21.8, -12.2, 0), Vector(21.8, 12.2, 0)),
    Part.ArcOfCircle(Part.Circle(Vector(0, 0, 0), Vector(0, 0, 1), 25), math.radians(23.98), math.radians(29.11)),
    Part.LineSegment(Vector(22.8, 10.2, 0), Vector(22.8, -10.2, 0)),
], False)
sketch18.addConstraint([
    Sketcher.Constraint("Coincident", 0, 1, 1, 1),
    Sketcher.Constraint("Coincident", 1, 2, 2, 2),
    Sketcher.Constraint("Coincident", 2, 1, 3, 1),
    Sketcher.Constraint("Coincident", 3, 2, 0, 2),
    Sketcher.Constraint("Vertical", 1),
    Sketcher.Constraint("Vertical", 3),
    Sketcher.Constraint("Coincident", 0, 3, -1, 1),
    Sketcher.Constraint("Coincident", 2, 3, -1, 1),
    Sketcher.Constraint("Equal", 0, 2),
    Sketcher.Constraint("Radius", 0, Q("24.999999 mm")),
    Sketcher.Constraint("DistanceX", 1, 2, 2, 1, Q("1 mm")),
    Sketcher.Constraint("DistanceY", 3, 2, 3, 1, Q("20.32 mm")),
])
sketch18.setExpression("Constraints[9]", "Params.sketch18_radius")
sketch18.setExpression("Constraints[11]", "Params.sketch18_height")
pocket9 = body.newObject("PartDesign::Pocket", "Pocket008")
pocket9.Profile = sketch18
pocket9.setExpression("Length", "Params.pocket9_length")

sketch19 = body.newObject("Sketcher::SketchObject", "Sketch018")
sketch19.AttachmentSupport = (doc.getObject("XZ_Plane"), [""])
sketch19.MapMode = "FlatFace"
sketch19.AttachmentOffset = App.Placement(Vector(0, 0, -5), App.Rotation())
sketch19.addGeometry([
    Part.LineSegment(Vector(10, -12, 0), Vector(10, 12, 0)),
    Part.LineSegment(Vector(10, 12, 0), Vector(22, 12, 0)),
    Part.LineSegment(Vector(22, 12, 0), Vector(22, -12, 0)),
    Part.LineSegment(Vector(22, -12, 0), Vector(10, -12, 0)),
], False)
sketch19.addConstraint([
    Sketcher.Constraint("Coincident", 0, 2, 1, 1),
    Sketcher.Constraint("Coincident", 1, 2, 2, 1),
    Sketcher.Constraint("Coincident", 2, 2, 3, 1),
    Sketcher.Constraint("Coincident", 3, 2, 0, 1),
    Sketcher.Constraint("Vertical", 0),
    Sketcher.Constraint("Horizontal", 1),
    Sketcher.Constraint("Vertical", 2),
    Sketcher.Constraint("Horizontal", 3),
    Sketcher.Constraint("DistanceX", 1, 1, 1, 2, Q("12 mm")),
    Sketcher.Constraint("DistanceY", 0, 1, 0, 2, Q("24.323681 mm")),
    Sketcher.Constraint("DistanceX", -1, 1, 0, 2, Q("9.842382 mm")),
    Sketcher.Constraint("DistanceY", -1, 1, 0, 2, Q("12.16184 mm")),
])
sketch19.setExpression("Constraints[8]", "Params.sketch19_width")
pocket10 = body.newObject("PartDesign::Pocket", "Pocket009")
pocket10.Profile = sketch19
pocket10.setExpression("Length", "Params.pocket10_length")
pocket10.Reversed = True

sketch20 = body.newObject("Sketcher::SketchObject", "Sketch019")
sketch20.AttachmentSupport = (doc.getObject("XZ_Plane"), [""])
sketch20.MapMode = "FlatFace"
sketch20.addGeometry(Part.Circle(Vector(17.3, -10, 0), Vector(0, 0, 1), 2), False)
sketch20.addConstraint([
    Sketcher.Constraint("Diameter", 0, Q("4 mm")),
    Sketcher.Constraint("DistanceY", 0, 3, -1, 1, Q("10 mm")),
    Sketcher.Constraint("DistanceX", -1, 1, 0, 3, Q("17.320508 mm")),
])
sketch20.setExpression("Constraints[0]", "Params.sketch20_diameter")
pad10 = body.newObject("PartDesign::Pad", "Pad009")
pad10.Profile = sketch20
pad10.setExpression("Length", "Params.pad10_length")
pad10.Reversed = True

sketch21 = body.newObject("Sketcher::SketchObject", "Sketch020")
sketch21.AttachmentSupport = (doc.getObject("XZ_Plane"), [""])
sketch21.MapMode = "FlatFace"
sketch21.AttachmentOffset = App.Placement(Vector(0, 0, -3), App.Rotation())
sketch21.addGeometry([
    Part.Circle(Vector(12.8, -7.6, 0), Vector(0, 0, 1), 1.5),
    Part.Circle(Vector(12.8, 7.6, 0), Vector(0, 0, 1), 1.5),
], False)
sketch21.addConstraint([
    Sketcher.Constraint("Equal", 0, 1),
    Sketcher.Constraint("Symmetric", 0, 3, 1, 3, -1),
    Sketcher.Constraint("Diameter", 0, Q("2.96 mm")),
    Sketcher.Constraint("DistanceY", 0, 3, -1, 1, Q("7.62 mm")),
    Sketcher.Constraint("DistanceX", -1, 1, 0, 3, Q("12.842382 mm")),
])
sketch21.setExpression("Constraints[2]", "Params.sketch21_diameter")
pocket11 = body.newObject("PartDesign::Pocket", "Pocket010")
pocket11.Profile = sketch21
pocket11.setExpression("Length", "Params.pocket11_length")
pocket11.Reversed = True

sketch22 = body.newObject("Sketcher::SketchObject", "Sketch021")
sketch22.AttachmentSupport = (doc.getObject("XZ_Plane"), [""])
sketch22.MapMode = "FlatFace"
sketch22.AttachmentOffset = App.Placement(Vector(0, 0, -3), App.Rotation())
sketch22.addGeometry([
    Part.LineSegment(Vector(22, -12, 0), Vector(22, 12, 0)),
    Part.LineSegment(Vector(22, 12, 0), Vector(32, 12, 0)),
    Part.LineSegment(Vector(32, 12, 0), Vector(32, -12, 0)),
    Part.LineSegment(Vector(32, -12, 0), Vector(22, -12, 0)),
], False)
sketch22.addConstraint([
    Sketcher.Constraint("Coincident", 0, 2, 1, 1),
    Sketcher.Constraint("Coincident", 1, 2, 2, 1),
    Sketcher.Constraint("Coincident", 2, 2, 3, 1),
    Sketcher.Constraint("Coincident", 3, 2, 0, 1),
    Sketcher.Constraint("Vertical", 0),
    Sketcher.Constraint("Horizontal", 1),
    Sketcher.Constraint("Vertical", 2),
    Sketcher.Constraint("Horizontal", 3),
    Sketcher.Constraint("DistanceX", 1, 1, 1, 2, Q("10.536992 mm")),
    Sketcher.Constraint("DistanceY", 0, 1, 0, 2, Q("24.323681 mm")),
    Sketcher.Constraint("DistanceX", -1, 1, 0, 2, Q("21.842382 mm")),
    Sketcher.Constraint("DistanceY", -1, 1, 0, 2, Q("12.16184 mm")),
])
pocket12 = body.newObject("PartDesign::Pocket", "Pocket011")
pocket12.Profile = sketch22
pocket12.setExpression("Length", "Params.pocket12_length")
pocket12.Reversed = True

sketch23 = body.newObject("Sketcher::SketchObject", "Sketch022")
sketch23.AttachmentSupport = (doc.getObject("XZ_Plane"), [""])
sketch23.MapMode = "FlatFace"
sketch23.AttachmentOffset = App.Placement(Vector(0, 0, -5), App.Rotation())
sketch23.addGeometry([
    Part.Circle(Vector(0, 0, 0), Vector(0, 0, 1), 10),
    Part.Circle(Vector(0, 0, 0), Vector(0, 0, 1), 6),
], False)
sketch23.addConstraint([
    Sketcher.Constraint("Coincident", 0, 3, -1, 1),
    Sketcher.Constraint("Coincident", 1, 3, -1, 1),
    Sketcher.Constraint("Diameter", 1, Q("12 mm")),
    Sketcher.Constraint("Diameter", 0, Q("19.684763 mm")),
])
sketch23.setExpression("Constraints[2]", "Params.sketch23_diameter")
pad11 = body.newObject("PartDesign::Pad", "Pad010")
pad11.Profile = sketch23
pad11.setExpression("Length", "Params.pad11_length")
pad11.Reversed = True

sketch24 = body.newObject("Sketcher::SketchObject", "Sketch023")
sketch24.AttachmentSupport = (doc.getObject("XZ_Plane"), [""])
sketch24.MapMode = "FlatFace"
sketch24.addGeometry([
    Part.LineSegment(Vector(8, 5, 0), Vector(0, 10, 0)),
    Part.LineSegment(Vector(0, 10, 0), Vector(-8, 5, 0)),
    Part.LineSegment(Vector(-8, 5, 0), Vector(-8, -5, 0)),
    Part.LineSegment(Vector(-8, -5, 0), Vector(0, -10, 0)),
    Part.LineSegment(Vector(0, -10, 0), Vector(8, -5, 0)),
    Part.LineSegment(Vector(8, -5, 0), Vector(8, 5, 0)),
], False)
sketch24.addConstraint([
    Sketcher.Constraint("Coincident", 0, 2, 1, 1),
    Sketcher.Constraint("Coincident", 1, 2, 2, 1),
    Sketcher.Constraint("Coincident", 2, 2, 3, 1),
    Sketcher.Constraint("Coincident", 3, 2, 4, 1),
    Sketcher.Constraint("Coincident", 4, 2, 5, 1),
    Sketcher.Constraint("Coincident", 5, 2, 0, 1),
    Sketcher.Constraint("Vertical", 2),
    Sketcher.Constraint("Vertical", 5),
    Sketcher.Constraint("Symmetric", 0, 2, 3, 2, -1, 1),
    Sketcher.Constraint("Symmetric", 1, 2, 4, 2, -1, 1),
    Sketcher.Constraint("PointOnObject", 0, 2, -2),
    Sketcher.Constraint("Parallel", 0, 3),
    Sketcher.Constraint("Horizontal", 2, 2, 4, 2),
    Sketcher.Constraint("Angle", 0, Q("150 deg")),
    Sketcher.Constraint("DistanceX", 2, 2, 4, 2, Q("17 mm")),
    Sketcher.Constraint("DistanceY", 2, 2, 2, 1, Q("9.814955 mm")),
])
pocket13 = body.newObject("PartDesign::Pocket", "Pocket012")
pocket13.Profile = sketch24
pocket13.setExpression("Length", "Params.pocket13_length")

sketch25 = body.newObject("Sketcher::SketchObject", "Sketch024")
sketch25.AttachmentSupport = (doc.getObject("XZ_Plane"), [""])
sketch25.MapMode = "FlatFace"
sketch25.AttachmentOffset = App.Placement(Vector(0, 0, -5), App.Rotation())
sketch25.addGeometry([
    Part.LineSegment(Vector(10, -6, 0), Vector(0, -11, 0)),
    Part.LineSegment(Vector(0, -11, 0), Vector(-10, -6, 0)),
    Part.LineSegment(Vector(-10, -6, 0), Vector(-10, 6, 0)),
    Part.LineSegment(Vector(-10, 6, 0), Vector(0, 11, 0)),
    Part.LineSegment(Vector(0, 11, 0), Vector(10, 6, 0)),
    Part.LineSegment(Vector(10, 6, 0), Vector(10, -6, 0)),
    Part.Circle(Vector(0, 0, 0), Vector(0, 0, 1), 6),
], False)
sketch25.addConstraint([
    Sketcher.Constraint("Coincident", 0, 2, 1, 1),
    Sketcher.Constraint("Coincident", 1, 2, 2, 1),
    Sketcher.Constraint("Coincident", 2, 2, 3, 1),
    Sketcher.Constraint("Coincident", 3, 2, 4, 1),
    Sketcher.Constraint("Coincident", 4, 2, 5, 1),
    Sketcher.Constraint("Coincident", 5, 2, 0, 1),
    Sketcher.Constraint("Vertical", 2),
    Sketcher.Constraint("Vertical", 5),
    Sketcher.Constraint("Coincident", 6, 3, -1, 1),
    Sketcher.Constraint("Symmetric", 0, 2, 3, 2, -1, 1),
    Sketcher.Constraint("Symmetric", 1, 2, 4, 2, -1, 1),
    Sketcher.Constraint("PointOnObject", 0, 2, -2),
    Sketcher.Constraint("Parallel", 0, 3),
    Sketcher.Constraint("Horizontal", 2, 2, 4, 2),
    Sketcher.Constraint("Diameter", 6, Q("12 mm")),
    Sketcher.Constraint("Angle", 0, Q("-150 deg")),
    Sketcher.Constraint("DistanceY", 1, 2, -1, 1, Q("5.682502 mm")),
    Sketcher.Constraint("DistanceY", 0, 2, 1, 2, Q("5.682502 mm")),
])
sketch25.setExpression("Constraints[14]", "Params.sketch25_diameter")
pad12 = body.newObject("PartDesign::Pad", "Pad011")
pad12.Profile = sketch25
pad12.setExpression("Length", "Params.pad12_length")
pad12.Reversed = True

sketch26 = body.newObject("Sketcher::SketchObject", "Sketch025")
sketch26.AttachmentSupport = (doc.getObject("XZ_Plane"), [""])
sketch26.MapMode = "FlatFace"
sketch26.addGeometry([
    Part.LineSegment(Vector(0, 10, 0), Vector(-8, 5, 0)),
    Part.LineSegment(Vector(-8, 5, 0), Vector(-8, -5, 0)),
    Part.LineSegment(Vector(-8, -5, 0), Vector(0, -10, 0)),
    Part.LineSegment(Vector(0, -10, 0), Vector(8, -5, 0)),
    Part.LineSegment(Vector(8, -5, 0), Vector(8, 5, 0)),
    Part.LineSegment(Vector(8, 5, 0), Vector(0, 10, 0)),
], False)
sketch26.addConstraint([
    Sketcher.Constraint("Coincident", 0, 2, 1, 1),
    Sketcher.Constraint("Coincident", 1, 2, 2, 1),
    Sketcher.Constraint("Coincident", 2, 2, 3, 1),
    Sketcher.Constraint("Coincident", 3, 2, 4, 1),
    Sketcher.Constraint("Coincident", 4, 2, 5, 1),
    Sketcher.Constraint("Coincident", 5, 2, 0, 1),
    Sketcher.Constraint("Vertical", 1),
    Sketcher.Constraint("Vertical", 4),
    Sketcher.Constraint("Symmetric", 0, 2, 3, 2, -1, 1),
    Sketcher.Constraint("Symmetric", 2, 2, 5, 2, -1, 1),
    Sketcher.Constraint("PointOnObject", 2, 2, -2),
    Sketcher.Constraint("Parallel", 2, 5),
    Sketcher.Constraint("Horizontal", 1, 2, 3, 2),
    Sketcher.Constraint("Angle", 0, Q("-150 deg")),
    Sketcher.Constraint("DistanceX", 1, 2, 3, 2, Q("17 mm")),
    Sketcher.Constraint("DistanceY", 1, 2, 1, 1, Q("9.814955 mm")),
])
pocket14 = body.newObject("PartDesign::Pocket", "Pocket013")
pocket14.Profile = sketch26
pocket14.setExpression("Length", "Params.pocket14_length")

doc.recompute()
